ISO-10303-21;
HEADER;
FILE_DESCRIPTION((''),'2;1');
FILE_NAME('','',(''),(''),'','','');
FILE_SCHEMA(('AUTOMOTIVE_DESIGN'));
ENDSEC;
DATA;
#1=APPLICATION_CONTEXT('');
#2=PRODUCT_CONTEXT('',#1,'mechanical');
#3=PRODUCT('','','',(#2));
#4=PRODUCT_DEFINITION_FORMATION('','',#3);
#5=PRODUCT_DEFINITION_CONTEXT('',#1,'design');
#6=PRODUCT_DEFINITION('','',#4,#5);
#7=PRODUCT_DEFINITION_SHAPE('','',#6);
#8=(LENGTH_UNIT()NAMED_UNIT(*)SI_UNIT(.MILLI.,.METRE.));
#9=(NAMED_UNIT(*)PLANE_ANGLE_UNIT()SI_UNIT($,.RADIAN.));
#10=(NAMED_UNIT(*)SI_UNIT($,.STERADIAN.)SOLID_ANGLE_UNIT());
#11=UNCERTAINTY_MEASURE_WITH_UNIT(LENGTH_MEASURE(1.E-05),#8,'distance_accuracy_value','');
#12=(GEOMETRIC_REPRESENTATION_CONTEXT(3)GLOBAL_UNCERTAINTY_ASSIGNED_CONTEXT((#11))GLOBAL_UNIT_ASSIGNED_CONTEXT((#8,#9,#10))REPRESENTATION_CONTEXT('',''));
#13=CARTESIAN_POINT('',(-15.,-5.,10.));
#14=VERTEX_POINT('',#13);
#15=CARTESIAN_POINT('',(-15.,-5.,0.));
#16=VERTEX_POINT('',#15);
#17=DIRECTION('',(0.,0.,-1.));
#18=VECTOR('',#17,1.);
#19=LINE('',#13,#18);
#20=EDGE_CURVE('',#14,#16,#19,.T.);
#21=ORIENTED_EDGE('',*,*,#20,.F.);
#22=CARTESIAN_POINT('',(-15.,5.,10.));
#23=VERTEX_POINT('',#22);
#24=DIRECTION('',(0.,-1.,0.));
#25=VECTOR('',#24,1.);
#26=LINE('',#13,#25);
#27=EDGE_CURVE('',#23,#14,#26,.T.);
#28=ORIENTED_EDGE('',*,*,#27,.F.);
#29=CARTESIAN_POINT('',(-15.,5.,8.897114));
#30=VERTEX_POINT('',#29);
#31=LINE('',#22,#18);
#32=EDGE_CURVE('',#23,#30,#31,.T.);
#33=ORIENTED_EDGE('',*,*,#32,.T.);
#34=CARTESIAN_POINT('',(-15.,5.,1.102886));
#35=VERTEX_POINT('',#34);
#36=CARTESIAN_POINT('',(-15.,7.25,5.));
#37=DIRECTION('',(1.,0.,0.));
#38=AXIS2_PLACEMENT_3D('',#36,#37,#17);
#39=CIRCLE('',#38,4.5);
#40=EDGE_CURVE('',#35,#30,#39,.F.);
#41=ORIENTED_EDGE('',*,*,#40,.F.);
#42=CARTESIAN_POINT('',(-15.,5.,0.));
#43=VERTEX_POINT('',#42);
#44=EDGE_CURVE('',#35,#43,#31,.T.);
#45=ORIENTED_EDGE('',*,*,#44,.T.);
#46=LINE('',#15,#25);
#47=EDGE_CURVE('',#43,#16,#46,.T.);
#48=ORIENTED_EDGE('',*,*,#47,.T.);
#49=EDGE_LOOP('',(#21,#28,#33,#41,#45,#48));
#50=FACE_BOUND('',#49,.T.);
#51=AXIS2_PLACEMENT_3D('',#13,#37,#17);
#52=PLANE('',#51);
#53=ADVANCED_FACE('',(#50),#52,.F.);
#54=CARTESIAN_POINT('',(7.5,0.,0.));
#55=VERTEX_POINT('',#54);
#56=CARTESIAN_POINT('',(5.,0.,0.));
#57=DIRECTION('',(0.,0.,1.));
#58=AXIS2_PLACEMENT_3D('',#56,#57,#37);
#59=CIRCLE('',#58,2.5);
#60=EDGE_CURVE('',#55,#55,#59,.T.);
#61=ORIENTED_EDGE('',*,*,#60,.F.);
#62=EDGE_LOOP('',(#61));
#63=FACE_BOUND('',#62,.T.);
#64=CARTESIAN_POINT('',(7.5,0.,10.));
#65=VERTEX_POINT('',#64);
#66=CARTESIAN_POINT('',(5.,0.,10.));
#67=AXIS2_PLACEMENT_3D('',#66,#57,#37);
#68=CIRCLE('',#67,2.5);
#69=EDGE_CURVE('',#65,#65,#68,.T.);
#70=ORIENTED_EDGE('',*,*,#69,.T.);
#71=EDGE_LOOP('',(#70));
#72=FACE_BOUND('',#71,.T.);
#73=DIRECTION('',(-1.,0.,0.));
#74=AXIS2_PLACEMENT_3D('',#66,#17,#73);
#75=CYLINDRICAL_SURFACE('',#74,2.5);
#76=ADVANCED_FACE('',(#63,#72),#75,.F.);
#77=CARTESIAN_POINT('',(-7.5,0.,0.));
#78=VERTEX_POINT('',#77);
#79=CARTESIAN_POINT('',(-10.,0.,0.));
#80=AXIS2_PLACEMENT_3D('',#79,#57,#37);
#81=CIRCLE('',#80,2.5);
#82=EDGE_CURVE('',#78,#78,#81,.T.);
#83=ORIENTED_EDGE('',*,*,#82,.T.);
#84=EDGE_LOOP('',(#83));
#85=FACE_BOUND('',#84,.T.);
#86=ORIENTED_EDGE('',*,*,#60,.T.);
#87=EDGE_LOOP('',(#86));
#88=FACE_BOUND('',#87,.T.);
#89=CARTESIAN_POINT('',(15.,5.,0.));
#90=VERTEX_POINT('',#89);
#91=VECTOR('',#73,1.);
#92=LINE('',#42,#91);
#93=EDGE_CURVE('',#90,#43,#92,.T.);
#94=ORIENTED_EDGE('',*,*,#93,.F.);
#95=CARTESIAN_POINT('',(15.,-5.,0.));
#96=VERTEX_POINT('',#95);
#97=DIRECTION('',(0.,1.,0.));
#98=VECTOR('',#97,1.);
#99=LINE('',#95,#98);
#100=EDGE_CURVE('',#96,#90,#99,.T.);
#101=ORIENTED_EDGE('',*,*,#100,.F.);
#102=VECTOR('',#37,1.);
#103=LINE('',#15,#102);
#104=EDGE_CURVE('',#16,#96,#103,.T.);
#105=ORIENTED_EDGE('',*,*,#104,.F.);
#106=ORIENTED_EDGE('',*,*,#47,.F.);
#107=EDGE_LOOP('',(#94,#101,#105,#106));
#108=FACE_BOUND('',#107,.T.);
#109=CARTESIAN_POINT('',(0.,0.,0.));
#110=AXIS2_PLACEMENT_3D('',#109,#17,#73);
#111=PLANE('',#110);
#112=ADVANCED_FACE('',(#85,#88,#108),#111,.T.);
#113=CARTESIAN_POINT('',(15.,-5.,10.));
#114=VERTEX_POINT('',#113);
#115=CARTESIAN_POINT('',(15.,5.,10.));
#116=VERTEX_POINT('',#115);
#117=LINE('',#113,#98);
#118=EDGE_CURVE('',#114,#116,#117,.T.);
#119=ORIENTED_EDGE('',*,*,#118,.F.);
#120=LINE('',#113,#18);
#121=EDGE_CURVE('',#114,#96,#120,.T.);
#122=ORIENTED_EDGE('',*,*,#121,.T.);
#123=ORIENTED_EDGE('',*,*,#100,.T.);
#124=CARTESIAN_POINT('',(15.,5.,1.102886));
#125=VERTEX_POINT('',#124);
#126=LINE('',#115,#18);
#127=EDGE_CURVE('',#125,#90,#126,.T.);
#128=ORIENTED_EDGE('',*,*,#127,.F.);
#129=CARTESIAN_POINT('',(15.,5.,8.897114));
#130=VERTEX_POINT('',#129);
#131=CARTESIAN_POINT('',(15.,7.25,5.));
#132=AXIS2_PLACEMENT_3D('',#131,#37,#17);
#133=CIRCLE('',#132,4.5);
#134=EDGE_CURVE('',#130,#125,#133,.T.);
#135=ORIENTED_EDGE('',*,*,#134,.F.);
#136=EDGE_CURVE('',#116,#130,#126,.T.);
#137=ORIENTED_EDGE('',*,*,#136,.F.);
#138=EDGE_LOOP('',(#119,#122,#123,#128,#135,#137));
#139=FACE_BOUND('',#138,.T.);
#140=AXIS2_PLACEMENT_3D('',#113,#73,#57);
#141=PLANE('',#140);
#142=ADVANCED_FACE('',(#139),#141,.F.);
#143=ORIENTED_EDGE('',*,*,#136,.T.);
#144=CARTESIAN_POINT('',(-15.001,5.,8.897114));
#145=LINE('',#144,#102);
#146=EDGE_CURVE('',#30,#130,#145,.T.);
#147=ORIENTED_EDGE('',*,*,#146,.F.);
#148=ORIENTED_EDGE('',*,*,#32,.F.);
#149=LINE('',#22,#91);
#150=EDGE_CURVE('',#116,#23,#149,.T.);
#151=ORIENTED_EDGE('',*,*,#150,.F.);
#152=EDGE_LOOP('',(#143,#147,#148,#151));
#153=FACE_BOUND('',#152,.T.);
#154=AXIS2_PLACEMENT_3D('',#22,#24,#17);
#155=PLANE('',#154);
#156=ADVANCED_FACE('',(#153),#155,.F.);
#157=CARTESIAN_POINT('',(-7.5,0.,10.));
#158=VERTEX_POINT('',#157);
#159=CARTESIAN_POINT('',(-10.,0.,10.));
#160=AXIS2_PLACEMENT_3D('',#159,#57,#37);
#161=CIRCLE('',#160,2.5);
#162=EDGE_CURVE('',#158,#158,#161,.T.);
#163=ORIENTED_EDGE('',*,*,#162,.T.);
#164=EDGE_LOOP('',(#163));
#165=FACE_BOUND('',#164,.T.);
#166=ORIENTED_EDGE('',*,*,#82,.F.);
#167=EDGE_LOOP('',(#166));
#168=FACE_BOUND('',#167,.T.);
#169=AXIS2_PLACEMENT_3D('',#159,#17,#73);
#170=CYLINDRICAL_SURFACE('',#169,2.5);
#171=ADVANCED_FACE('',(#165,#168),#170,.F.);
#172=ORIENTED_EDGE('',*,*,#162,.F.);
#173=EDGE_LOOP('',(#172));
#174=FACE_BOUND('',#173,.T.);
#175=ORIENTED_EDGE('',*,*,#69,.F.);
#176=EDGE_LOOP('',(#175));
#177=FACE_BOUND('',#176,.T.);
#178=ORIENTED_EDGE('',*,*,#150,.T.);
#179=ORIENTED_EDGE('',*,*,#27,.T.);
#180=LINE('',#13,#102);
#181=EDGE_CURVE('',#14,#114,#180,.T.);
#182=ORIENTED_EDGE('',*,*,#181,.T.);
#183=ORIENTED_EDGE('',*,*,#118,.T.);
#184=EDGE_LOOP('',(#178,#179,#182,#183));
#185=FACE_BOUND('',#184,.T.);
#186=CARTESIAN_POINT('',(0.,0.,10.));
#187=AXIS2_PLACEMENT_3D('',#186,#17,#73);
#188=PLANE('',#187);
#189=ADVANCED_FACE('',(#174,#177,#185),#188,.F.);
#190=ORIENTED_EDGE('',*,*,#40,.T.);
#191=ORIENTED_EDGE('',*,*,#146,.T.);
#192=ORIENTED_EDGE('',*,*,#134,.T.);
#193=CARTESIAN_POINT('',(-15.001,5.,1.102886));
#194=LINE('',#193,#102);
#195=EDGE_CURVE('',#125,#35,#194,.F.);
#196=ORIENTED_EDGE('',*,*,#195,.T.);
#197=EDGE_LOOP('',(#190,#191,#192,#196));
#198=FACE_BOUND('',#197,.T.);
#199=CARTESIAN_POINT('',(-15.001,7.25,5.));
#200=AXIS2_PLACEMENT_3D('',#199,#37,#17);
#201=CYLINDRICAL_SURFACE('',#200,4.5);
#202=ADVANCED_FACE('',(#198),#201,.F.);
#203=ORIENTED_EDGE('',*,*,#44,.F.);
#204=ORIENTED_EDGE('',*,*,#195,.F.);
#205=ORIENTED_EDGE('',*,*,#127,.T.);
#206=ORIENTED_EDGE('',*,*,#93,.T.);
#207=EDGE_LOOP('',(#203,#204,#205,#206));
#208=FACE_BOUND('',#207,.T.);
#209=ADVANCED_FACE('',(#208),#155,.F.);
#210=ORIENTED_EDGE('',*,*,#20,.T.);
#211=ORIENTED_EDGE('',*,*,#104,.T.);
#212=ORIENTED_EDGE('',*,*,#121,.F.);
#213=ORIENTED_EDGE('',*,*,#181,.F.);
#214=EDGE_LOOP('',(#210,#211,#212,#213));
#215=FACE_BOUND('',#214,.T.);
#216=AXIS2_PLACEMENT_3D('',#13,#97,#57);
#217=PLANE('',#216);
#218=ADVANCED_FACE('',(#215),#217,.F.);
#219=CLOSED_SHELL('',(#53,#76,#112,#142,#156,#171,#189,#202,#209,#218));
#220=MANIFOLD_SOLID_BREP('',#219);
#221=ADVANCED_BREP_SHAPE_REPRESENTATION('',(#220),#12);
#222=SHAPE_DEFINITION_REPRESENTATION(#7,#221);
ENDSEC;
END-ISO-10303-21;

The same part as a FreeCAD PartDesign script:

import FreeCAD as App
import Part
import Sketcher
Q = App.Units.Quantity


def add_polygon(sketch, points):
    """Adds a closed chain of lines whose ends are joined by coincident constraints."""
    first, n = sketch.GeometryCount, len(points)
    for a, b in zip(points, points[1:] + points[:1]):
        sketch.addGeometry(Part.LineSegment(App.Vector(*a, 0), App.Vector(*b, 0)), False)
    for i in range(n):
        sketch.addConstraint(Sketcher.Constraint("Coincident", first + i, 2, first + (i + 1) % n, 1))

doc = App.newDocument("Part")
body = doc.addObject("PartDesign::Body", "Body")

# Sketch on XY plane
sketch1 = body.newObject("Sketcher::SketchObject", "Sketch")
sketch1.AttachmentSupport = (doc.getObject("XY_Plane"), [""])
sketch1.MapMode = "FlatFace"
add_polygon(sketch1, [(-15, 5), (-15, -5), (15, -5), (15, 5)])  # lines 0-3
sketch1.addGeometry(Part.Circle(App.Vector(-10, 0, 0), App.Vector(0, 0, 1), 2.5), False)  # 4
sketch1.addGeometry(Part.Circle(App.Vector(5, 0, 0), App.Vector(0, 0, 1), 2.5), False)  # 5
sketch1.addConstraint(Sketcher.Constraint("Vertical", 0))
sketch1.addConstraint(Sketcher.Constraint("Horizontal", 1))
sketch1.addConstraint(Sketcher.Constraint("Vertical", 2))
sketch1.addConstraint(Sketcher.Constraint("Horizontal", 3))
sketch1.addConstraint(Sketcher.Constraint("Equal", 4, 5))
sketch1.addConstraint(Sketcher.Constraint("Symmetric", 0, 2, 2, 2, -1, 1))
sketch1.addConstraint(Sketcher.Constraint("PointOnObject", 4, 3, -1))
sketch1.addConstraint(Sketcher.Constraint("PointOnObject", 5, 3, -1))
sketch1.addConstraint(Sketcher.Constraint("Diameter", 4, Q("5 mm")))
sketch1.addConstraint(Sketcher.Constraint("DistanceX", 1, 1, 1, 2, Q("30 mm")))
sketch1.addConstraint(Sketcher.Constraint("DistanceY", 0, 2, 0, 1, Q("10 mm")))
sketch1.addConstraint(Sketcher.Constraint("DistanceX", 4, 3, -1, 1, Q("10 mm")))
sketch1.addConstraint(Sketcher.Constraint("DistanceX", -1, 1, 5, 3, Q("5 mm")))
pad1 = body.newObject("PartDesign::Pad", "Pad")
pad1.Profile = sketch1
pad1.Length = 10

# Sketch on YZ plane
sketch2 = body.newObject("Sketcher::SketchObject", "Sketch001")
sketch2.AttachmentSupport = (doc.getObject("YZ_Plane"), [""])
sketch2.MapMode = "FlatFace"
sketch2.AttachmentOffset = App.Placement(App.Vector(0, 0, 15), App.Rotation())
sketch2.addGeometry(Part.Circle(App.Vector(7.25, 5, 0), App.Vector(0, 0, 1), 4.5), False)
sketch2.addConstraint(Sketcher.Constraint("Diameter", 0, Q("9 mm")))
sketch2.addConstraint(Sketcher.Constraint("DistanceY", -1, 1, 0, 3, Q("5 mm")))
sketch2.addConstraint(Sketcher.Constraint("DistanceX", -1, 1, 0, 3, Q("7.25 mm")))
pocket1 = body.newObject("PartDesign::Pocket", "Pocket")
pocket1.Profile = sketch2
pocket1.Length = 30

doc.recompute()
